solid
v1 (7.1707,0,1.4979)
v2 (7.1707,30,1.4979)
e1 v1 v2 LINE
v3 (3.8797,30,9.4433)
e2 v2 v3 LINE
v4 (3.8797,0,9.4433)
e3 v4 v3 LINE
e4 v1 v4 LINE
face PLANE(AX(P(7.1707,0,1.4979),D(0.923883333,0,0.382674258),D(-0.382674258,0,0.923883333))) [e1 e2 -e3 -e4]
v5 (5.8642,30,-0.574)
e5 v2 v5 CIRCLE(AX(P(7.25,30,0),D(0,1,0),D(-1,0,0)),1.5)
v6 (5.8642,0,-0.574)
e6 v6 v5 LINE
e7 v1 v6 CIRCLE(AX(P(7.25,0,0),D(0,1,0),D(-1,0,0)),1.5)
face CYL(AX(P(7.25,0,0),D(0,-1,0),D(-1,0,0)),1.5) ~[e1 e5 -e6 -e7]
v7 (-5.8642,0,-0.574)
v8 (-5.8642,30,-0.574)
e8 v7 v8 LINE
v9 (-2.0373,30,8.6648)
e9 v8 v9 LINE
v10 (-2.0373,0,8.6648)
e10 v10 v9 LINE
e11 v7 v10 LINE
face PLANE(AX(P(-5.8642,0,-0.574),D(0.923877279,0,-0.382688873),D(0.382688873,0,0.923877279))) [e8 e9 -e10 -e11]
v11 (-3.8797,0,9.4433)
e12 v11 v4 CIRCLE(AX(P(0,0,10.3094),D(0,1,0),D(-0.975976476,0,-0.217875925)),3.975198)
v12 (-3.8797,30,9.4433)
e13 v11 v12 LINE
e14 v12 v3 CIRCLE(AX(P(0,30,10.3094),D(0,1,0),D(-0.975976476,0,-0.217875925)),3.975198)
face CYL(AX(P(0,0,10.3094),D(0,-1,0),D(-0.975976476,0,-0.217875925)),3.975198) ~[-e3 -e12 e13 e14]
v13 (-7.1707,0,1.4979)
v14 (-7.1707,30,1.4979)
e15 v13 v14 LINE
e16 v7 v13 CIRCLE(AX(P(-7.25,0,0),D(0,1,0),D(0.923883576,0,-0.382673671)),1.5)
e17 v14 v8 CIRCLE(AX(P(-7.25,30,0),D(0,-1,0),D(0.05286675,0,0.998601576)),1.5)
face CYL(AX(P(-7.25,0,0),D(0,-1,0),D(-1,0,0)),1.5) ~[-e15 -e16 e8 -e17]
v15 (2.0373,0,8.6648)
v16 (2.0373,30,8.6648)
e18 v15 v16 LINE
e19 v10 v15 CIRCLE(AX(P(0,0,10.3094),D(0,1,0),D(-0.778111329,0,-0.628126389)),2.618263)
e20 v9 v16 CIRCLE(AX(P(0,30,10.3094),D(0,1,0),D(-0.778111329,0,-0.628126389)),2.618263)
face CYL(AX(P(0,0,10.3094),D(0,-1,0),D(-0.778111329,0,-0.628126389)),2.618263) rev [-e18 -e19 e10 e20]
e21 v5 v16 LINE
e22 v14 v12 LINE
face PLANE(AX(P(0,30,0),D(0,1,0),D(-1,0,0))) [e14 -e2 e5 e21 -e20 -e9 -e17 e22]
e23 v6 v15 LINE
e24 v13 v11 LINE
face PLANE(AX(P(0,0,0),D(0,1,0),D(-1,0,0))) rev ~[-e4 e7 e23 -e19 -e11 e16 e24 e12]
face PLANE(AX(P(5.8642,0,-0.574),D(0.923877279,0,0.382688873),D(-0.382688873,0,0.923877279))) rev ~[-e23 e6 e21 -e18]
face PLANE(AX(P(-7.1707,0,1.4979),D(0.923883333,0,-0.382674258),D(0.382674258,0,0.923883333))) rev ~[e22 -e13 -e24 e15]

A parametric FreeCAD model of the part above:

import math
import FreeCAD as App
import Part
import Sketcher
from FreeCAD import Vector
Q = App.Units.Quantity

doc = App.newDocument("Part")
params = doc.addObject("Spreadsheet::Sheet", "Params")
for row, (alias, value) in enumerate([
    ("sketch1_radius", "1.5 mm"),
    ("sketch1_length", "10 mm"),
    ("sketch1_length2", "8.6 mm"),
    ("pad1_length", "30 mm"),
], start=1):
    params.set(f"A{row}", alias)
    params.set(f"B{row}", "=" + value)
    params.setAlias(f"B{row}", alias)

body = doc.addObject("PartDesign::Body", "Body")

sketch1 = body.newObject("Sketcher::SketchObject", "Sketch")
sketch1.AttachmentSupport = (doc.getObject("XZ_Plane"), [""])
sketch1.MapMode = "FlatFace"
sketch1.addGeometry(Part.ArcOfCircle(Part.Circle(Vector(-7.2, 0, 0), Vector(0, 0, 1), 1.5), math.radians(87), math.radians(338)), False)
sketch1.addGeometry(Part.LineSegment(Vector(-7.2, 1.5, 0), Vector(-3.9, 9.4, 0)), False)
sketch1.addGeometry(Part.ArcOfCircle(Part.Circle(Vector(0, 10.3, 0), Vector(0, 0, 1), 4), math.radians(-13), math.radians(193)), False)
sketch1.addGeometry(Part.LineSegment(Vector(3.9, 9.4, 0), Vector(7.2, 1.5, 0)), False)
sketch1.addGeometry(Part.ArcOfCircle(Part.Circle(Vector(7.2, 0, 0), Vector(0, 0, 1), 1.5), math.radians(-158), math.radians(93)), False)
sketch1.addGeometry(Part.LineSegment(Vector(5.9, -0.6, 0), Vector(2, 8.7, 0)), False)
sketch1.addGeometry(Part.ArcOfCircle(Part.Circle(Vector(0, 10.3, 0), Vector(0, 0, 1), 2.6), math.radians(-39), math.radians(219)), False)
sketch1.addGeometry(Part.LineSegment(Vector(-2, 8.7, 0), Vector(-5.9, -0.6, 0)), False)
sketch1.addConstraint(Sketcher.Constraint("Coincident", 0, 1, 1, 1))
sketch1.addConstraint(Sketcher.Constraint("Coincident", 1, 2, 2, 2))
sketch1.addConstraint(Sketcher.Constraint("Coincident", 2, 1, 3, 1))
sketch1.addConstraint(Sketcher.Constraint("Coincident", 3, 2, 4, 2))
sketch1.addConstraint(Sketcher.Constraint("Tangent", 4, 1, 5, 1))
sketch1.addConstraint(Sketcher.Constraint("Coincident", 5, 2, 6, 1))
sketch1.addConstraint(Sketcher.Constraint("Coincident", 6, 2, 7, 1))
sketch1.addConstraint(Sketcher.Constraint("Tangent", 7, 2, 0, 2))
sketch1.addConstraint(Sketcher.Constraint("Coincident", 6, 3, 2, 3))
sketch1.addConstraint(Sketcher.Constraint("Equal", 0, 4))
sketch1.addConstraint(Sketcher.Constraint("Symmetric", 0, 3, 4, 3, -1, 1))
sketch1.addConstraint(Sketcher.Constraint("Symmetric", 1, 2, 2, 1, -2))
sketch1.addConstraint(Sketcher.Constraint("Symmetric", 0, 1, 3, 2, -2))
sketch1.addConstraint(Sketcher.Constraint("Parallel", 3, 5))
sketch1.addConstraint(Sketcher.Constraint("Parallel", 1, 7))
sketch1.addConstraint(Sketcher.Constraint("Radius", 0, 1.5))
sketch1.addConstraint(Sketcher.Constraint("Distance", 5, 10.0))
sketch1.addConstraint(Sketcher.Constraint("Distance", 1, 8.6))
sketch1.addConstraint(Sketcher.Constraint("DistanceX", 0, 3, 4, 3, 14.5))
sketch1.addConstraint(Sketcher.Constraint("Angle", 1, Q("67.5006 deg")))
sketch1.addConstraint(Sketcher.Constraint("Radius", 2, 3.9752))
sketch1.addConstraint(Sketcher.Constraint("Radius", 6, 2.6183))
sketch1.setExpression("Constraints[15]", "Params.sketch1_radius")
sketch1.setExpression("Constraints[16]", "Params.sketch1_length")
sketch1.setExpression("Constraints[17]", "Params.sketch1_length2")
pad1 = body.newObject("PartDesign::Pad", "Pad")
pad1.Profile = sketch1
pad1.setExpression("Length", "Params.pad1_length")
pad1.Reversed = True

doc.recompute()
